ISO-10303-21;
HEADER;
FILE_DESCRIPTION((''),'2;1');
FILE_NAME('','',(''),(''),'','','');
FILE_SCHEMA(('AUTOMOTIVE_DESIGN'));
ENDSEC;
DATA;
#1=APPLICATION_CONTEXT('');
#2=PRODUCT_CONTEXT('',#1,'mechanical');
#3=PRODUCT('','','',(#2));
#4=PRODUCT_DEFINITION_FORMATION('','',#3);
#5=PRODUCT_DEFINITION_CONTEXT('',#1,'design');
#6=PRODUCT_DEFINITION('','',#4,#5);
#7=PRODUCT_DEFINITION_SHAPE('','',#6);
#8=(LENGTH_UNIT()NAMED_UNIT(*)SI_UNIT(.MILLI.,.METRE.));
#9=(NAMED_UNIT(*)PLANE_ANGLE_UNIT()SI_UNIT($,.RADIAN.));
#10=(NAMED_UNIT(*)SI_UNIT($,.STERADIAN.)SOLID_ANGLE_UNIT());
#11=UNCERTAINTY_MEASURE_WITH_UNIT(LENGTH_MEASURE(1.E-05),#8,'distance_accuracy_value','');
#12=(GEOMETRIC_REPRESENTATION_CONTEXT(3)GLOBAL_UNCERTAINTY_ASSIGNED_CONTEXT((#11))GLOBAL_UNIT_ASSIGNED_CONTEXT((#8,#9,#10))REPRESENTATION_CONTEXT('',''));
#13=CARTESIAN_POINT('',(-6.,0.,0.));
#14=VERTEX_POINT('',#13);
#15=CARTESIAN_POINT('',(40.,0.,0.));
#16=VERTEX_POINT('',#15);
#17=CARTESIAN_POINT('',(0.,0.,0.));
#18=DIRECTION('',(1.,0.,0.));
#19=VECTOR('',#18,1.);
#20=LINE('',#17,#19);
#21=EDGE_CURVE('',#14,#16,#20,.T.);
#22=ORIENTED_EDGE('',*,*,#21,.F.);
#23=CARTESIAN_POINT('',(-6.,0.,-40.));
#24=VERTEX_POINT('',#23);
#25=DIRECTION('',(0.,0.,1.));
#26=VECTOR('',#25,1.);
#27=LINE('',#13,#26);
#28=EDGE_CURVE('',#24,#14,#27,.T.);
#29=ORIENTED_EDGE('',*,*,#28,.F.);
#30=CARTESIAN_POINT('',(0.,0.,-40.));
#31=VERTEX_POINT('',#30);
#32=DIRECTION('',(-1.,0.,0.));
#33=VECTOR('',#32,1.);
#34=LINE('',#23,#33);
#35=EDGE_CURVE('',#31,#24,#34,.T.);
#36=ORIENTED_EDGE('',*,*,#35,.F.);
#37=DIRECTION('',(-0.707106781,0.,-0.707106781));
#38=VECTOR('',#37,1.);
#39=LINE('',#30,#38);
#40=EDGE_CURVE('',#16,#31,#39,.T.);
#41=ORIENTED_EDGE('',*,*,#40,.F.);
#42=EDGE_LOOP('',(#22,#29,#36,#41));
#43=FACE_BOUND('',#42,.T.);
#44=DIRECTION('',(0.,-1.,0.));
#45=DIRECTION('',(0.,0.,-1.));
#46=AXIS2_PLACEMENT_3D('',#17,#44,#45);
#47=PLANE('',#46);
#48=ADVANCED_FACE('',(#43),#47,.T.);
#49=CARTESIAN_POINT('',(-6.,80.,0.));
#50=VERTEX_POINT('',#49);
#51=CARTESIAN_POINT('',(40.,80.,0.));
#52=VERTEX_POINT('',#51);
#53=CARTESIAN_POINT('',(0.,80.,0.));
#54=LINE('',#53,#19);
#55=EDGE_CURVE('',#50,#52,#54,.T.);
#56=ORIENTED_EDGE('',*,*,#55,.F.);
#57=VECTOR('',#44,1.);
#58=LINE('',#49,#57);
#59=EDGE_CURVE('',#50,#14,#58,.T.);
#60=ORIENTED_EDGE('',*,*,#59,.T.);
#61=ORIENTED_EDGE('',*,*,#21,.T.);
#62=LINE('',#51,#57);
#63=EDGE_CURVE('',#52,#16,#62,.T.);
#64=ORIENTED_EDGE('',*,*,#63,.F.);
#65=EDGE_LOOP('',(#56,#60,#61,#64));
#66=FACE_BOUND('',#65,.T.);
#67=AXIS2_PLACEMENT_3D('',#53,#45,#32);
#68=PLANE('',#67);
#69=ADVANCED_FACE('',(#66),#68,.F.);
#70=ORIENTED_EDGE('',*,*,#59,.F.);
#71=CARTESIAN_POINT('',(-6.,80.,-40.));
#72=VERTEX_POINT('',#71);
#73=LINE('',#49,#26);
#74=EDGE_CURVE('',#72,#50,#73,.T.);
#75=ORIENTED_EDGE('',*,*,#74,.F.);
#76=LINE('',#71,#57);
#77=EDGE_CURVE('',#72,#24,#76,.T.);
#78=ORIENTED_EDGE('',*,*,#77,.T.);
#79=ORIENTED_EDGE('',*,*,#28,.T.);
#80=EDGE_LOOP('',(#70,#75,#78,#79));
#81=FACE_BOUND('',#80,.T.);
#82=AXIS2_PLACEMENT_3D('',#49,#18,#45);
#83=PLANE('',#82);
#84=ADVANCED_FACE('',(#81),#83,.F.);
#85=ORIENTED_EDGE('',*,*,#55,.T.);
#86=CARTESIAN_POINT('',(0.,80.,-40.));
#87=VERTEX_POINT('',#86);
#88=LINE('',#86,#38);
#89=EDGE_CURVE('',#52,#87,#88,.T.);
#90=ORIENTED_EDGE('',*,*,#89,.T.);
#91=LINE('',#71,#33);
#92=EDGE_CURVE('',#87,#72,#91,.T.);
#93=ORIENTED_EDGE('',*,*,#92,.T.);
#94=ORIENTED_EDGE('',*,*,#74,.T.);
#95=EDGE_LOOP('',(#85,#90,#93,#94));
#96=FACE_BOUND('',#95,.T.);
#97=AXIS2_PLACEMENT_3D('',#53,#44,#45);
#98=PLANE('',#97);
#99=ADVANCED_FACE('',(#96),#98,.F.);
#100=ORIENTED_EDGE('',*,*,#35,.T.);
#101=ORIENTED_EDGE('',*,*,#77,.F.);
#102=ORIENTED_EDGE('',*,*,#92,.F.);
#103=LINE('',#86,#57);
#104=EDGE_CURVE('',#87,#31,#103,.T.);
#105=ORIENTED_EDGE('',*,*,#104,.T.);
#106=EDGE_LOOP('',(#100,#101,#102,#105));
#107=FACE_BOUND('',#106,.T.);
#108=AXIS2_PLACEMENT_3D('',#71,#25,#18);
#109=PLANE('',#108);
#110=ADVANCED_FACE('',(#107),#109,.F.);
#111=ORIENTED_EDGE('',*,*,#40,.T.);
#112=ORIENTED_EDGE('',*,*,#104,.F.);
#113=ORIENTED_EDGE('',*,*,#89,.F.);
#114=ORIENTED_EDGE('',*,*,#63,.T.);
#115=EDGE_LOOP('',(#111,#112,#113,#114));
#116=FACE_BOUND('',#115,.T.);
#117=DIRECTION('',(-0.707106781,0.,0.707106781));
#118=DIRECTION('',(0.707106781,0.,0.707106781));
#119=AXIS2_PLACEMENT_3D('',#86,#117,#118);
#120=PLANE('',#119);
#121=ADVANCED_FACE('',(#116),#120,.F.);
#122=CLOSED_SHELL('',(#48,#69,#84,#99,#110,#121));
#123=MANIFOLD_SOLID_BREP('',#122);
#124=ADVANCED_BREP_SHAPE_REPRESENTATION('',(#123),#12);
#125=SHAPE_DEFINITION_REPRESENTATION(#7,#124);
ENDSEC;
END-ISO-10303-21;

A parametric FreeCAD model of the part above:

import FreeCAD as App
import Part
import Sketcher

V = App.Vector
Q = App.Units.Quantity

doc = App.newDocument("Part")
body = doc.addObject("PartDesign::Body", "Body")

# Sketch on XZ plane
sketch1 = doc.addObject("Sketcher::SketchObject", "Sketch")
body.addObject(sketch1)
sketch1.AttachmentSupport = (doc.XZ_Plane, [""])
sketch1.MapMode = "FlatFace"
sketch1.addGeometry([
    Part.LineSegment(V(40, 0, 0), V(0, -40, 0)),
    Part.LineSegment(V(0, -40, 0), V(-6, -40, 0)),
    Part.LineSegment(V(-6, -40, 0), V(-6, 0, 0)),
    Part.LineSegment(V(-6, 0, 0), V(40, 0, 0)),
], False)
sketch1.addConstraint([
    Sketcher.Constraint("Coincident", 0, 2, 1, 1),
    Sketcher.Constraint("Coincident", 1, 2, 2, 1),
    Sketcher.Constraint("Coincident", 2, 2, 3, 1),
    Sketcher.Constraint("Coincident", 3, 2, 0, 1),
    Sketcher.Constraint("Horizontal", 1),
    Sketcher.Constraint("Vertical", 2),
    Sketcher.Constraint("Horizontal", 3),
    Sketcher.Constraint("PointOnObject", 0, 2, -2),
    Sketcher.Constraint("PointOnObject", 2, 2, -1),
    Sketcher.Constraint("DistanceX", 1, 2, 1, 1, Q("6 mm")),
    Sketcher.Constraint("DistanceX", 3, 1, 3, 2, Q("46 mm")),
    Sketcher.Constraint("DistanceY", 2, 1, 2, 2, Q("40 mm")),
])
pad1 = doc.addObject("PartDesign::Pad", "Pad")
body.addObject(pad1)
pad1.Profile = sketch1
pad1.Length = 80
pad1.Reversed = True

doc.recompute()
